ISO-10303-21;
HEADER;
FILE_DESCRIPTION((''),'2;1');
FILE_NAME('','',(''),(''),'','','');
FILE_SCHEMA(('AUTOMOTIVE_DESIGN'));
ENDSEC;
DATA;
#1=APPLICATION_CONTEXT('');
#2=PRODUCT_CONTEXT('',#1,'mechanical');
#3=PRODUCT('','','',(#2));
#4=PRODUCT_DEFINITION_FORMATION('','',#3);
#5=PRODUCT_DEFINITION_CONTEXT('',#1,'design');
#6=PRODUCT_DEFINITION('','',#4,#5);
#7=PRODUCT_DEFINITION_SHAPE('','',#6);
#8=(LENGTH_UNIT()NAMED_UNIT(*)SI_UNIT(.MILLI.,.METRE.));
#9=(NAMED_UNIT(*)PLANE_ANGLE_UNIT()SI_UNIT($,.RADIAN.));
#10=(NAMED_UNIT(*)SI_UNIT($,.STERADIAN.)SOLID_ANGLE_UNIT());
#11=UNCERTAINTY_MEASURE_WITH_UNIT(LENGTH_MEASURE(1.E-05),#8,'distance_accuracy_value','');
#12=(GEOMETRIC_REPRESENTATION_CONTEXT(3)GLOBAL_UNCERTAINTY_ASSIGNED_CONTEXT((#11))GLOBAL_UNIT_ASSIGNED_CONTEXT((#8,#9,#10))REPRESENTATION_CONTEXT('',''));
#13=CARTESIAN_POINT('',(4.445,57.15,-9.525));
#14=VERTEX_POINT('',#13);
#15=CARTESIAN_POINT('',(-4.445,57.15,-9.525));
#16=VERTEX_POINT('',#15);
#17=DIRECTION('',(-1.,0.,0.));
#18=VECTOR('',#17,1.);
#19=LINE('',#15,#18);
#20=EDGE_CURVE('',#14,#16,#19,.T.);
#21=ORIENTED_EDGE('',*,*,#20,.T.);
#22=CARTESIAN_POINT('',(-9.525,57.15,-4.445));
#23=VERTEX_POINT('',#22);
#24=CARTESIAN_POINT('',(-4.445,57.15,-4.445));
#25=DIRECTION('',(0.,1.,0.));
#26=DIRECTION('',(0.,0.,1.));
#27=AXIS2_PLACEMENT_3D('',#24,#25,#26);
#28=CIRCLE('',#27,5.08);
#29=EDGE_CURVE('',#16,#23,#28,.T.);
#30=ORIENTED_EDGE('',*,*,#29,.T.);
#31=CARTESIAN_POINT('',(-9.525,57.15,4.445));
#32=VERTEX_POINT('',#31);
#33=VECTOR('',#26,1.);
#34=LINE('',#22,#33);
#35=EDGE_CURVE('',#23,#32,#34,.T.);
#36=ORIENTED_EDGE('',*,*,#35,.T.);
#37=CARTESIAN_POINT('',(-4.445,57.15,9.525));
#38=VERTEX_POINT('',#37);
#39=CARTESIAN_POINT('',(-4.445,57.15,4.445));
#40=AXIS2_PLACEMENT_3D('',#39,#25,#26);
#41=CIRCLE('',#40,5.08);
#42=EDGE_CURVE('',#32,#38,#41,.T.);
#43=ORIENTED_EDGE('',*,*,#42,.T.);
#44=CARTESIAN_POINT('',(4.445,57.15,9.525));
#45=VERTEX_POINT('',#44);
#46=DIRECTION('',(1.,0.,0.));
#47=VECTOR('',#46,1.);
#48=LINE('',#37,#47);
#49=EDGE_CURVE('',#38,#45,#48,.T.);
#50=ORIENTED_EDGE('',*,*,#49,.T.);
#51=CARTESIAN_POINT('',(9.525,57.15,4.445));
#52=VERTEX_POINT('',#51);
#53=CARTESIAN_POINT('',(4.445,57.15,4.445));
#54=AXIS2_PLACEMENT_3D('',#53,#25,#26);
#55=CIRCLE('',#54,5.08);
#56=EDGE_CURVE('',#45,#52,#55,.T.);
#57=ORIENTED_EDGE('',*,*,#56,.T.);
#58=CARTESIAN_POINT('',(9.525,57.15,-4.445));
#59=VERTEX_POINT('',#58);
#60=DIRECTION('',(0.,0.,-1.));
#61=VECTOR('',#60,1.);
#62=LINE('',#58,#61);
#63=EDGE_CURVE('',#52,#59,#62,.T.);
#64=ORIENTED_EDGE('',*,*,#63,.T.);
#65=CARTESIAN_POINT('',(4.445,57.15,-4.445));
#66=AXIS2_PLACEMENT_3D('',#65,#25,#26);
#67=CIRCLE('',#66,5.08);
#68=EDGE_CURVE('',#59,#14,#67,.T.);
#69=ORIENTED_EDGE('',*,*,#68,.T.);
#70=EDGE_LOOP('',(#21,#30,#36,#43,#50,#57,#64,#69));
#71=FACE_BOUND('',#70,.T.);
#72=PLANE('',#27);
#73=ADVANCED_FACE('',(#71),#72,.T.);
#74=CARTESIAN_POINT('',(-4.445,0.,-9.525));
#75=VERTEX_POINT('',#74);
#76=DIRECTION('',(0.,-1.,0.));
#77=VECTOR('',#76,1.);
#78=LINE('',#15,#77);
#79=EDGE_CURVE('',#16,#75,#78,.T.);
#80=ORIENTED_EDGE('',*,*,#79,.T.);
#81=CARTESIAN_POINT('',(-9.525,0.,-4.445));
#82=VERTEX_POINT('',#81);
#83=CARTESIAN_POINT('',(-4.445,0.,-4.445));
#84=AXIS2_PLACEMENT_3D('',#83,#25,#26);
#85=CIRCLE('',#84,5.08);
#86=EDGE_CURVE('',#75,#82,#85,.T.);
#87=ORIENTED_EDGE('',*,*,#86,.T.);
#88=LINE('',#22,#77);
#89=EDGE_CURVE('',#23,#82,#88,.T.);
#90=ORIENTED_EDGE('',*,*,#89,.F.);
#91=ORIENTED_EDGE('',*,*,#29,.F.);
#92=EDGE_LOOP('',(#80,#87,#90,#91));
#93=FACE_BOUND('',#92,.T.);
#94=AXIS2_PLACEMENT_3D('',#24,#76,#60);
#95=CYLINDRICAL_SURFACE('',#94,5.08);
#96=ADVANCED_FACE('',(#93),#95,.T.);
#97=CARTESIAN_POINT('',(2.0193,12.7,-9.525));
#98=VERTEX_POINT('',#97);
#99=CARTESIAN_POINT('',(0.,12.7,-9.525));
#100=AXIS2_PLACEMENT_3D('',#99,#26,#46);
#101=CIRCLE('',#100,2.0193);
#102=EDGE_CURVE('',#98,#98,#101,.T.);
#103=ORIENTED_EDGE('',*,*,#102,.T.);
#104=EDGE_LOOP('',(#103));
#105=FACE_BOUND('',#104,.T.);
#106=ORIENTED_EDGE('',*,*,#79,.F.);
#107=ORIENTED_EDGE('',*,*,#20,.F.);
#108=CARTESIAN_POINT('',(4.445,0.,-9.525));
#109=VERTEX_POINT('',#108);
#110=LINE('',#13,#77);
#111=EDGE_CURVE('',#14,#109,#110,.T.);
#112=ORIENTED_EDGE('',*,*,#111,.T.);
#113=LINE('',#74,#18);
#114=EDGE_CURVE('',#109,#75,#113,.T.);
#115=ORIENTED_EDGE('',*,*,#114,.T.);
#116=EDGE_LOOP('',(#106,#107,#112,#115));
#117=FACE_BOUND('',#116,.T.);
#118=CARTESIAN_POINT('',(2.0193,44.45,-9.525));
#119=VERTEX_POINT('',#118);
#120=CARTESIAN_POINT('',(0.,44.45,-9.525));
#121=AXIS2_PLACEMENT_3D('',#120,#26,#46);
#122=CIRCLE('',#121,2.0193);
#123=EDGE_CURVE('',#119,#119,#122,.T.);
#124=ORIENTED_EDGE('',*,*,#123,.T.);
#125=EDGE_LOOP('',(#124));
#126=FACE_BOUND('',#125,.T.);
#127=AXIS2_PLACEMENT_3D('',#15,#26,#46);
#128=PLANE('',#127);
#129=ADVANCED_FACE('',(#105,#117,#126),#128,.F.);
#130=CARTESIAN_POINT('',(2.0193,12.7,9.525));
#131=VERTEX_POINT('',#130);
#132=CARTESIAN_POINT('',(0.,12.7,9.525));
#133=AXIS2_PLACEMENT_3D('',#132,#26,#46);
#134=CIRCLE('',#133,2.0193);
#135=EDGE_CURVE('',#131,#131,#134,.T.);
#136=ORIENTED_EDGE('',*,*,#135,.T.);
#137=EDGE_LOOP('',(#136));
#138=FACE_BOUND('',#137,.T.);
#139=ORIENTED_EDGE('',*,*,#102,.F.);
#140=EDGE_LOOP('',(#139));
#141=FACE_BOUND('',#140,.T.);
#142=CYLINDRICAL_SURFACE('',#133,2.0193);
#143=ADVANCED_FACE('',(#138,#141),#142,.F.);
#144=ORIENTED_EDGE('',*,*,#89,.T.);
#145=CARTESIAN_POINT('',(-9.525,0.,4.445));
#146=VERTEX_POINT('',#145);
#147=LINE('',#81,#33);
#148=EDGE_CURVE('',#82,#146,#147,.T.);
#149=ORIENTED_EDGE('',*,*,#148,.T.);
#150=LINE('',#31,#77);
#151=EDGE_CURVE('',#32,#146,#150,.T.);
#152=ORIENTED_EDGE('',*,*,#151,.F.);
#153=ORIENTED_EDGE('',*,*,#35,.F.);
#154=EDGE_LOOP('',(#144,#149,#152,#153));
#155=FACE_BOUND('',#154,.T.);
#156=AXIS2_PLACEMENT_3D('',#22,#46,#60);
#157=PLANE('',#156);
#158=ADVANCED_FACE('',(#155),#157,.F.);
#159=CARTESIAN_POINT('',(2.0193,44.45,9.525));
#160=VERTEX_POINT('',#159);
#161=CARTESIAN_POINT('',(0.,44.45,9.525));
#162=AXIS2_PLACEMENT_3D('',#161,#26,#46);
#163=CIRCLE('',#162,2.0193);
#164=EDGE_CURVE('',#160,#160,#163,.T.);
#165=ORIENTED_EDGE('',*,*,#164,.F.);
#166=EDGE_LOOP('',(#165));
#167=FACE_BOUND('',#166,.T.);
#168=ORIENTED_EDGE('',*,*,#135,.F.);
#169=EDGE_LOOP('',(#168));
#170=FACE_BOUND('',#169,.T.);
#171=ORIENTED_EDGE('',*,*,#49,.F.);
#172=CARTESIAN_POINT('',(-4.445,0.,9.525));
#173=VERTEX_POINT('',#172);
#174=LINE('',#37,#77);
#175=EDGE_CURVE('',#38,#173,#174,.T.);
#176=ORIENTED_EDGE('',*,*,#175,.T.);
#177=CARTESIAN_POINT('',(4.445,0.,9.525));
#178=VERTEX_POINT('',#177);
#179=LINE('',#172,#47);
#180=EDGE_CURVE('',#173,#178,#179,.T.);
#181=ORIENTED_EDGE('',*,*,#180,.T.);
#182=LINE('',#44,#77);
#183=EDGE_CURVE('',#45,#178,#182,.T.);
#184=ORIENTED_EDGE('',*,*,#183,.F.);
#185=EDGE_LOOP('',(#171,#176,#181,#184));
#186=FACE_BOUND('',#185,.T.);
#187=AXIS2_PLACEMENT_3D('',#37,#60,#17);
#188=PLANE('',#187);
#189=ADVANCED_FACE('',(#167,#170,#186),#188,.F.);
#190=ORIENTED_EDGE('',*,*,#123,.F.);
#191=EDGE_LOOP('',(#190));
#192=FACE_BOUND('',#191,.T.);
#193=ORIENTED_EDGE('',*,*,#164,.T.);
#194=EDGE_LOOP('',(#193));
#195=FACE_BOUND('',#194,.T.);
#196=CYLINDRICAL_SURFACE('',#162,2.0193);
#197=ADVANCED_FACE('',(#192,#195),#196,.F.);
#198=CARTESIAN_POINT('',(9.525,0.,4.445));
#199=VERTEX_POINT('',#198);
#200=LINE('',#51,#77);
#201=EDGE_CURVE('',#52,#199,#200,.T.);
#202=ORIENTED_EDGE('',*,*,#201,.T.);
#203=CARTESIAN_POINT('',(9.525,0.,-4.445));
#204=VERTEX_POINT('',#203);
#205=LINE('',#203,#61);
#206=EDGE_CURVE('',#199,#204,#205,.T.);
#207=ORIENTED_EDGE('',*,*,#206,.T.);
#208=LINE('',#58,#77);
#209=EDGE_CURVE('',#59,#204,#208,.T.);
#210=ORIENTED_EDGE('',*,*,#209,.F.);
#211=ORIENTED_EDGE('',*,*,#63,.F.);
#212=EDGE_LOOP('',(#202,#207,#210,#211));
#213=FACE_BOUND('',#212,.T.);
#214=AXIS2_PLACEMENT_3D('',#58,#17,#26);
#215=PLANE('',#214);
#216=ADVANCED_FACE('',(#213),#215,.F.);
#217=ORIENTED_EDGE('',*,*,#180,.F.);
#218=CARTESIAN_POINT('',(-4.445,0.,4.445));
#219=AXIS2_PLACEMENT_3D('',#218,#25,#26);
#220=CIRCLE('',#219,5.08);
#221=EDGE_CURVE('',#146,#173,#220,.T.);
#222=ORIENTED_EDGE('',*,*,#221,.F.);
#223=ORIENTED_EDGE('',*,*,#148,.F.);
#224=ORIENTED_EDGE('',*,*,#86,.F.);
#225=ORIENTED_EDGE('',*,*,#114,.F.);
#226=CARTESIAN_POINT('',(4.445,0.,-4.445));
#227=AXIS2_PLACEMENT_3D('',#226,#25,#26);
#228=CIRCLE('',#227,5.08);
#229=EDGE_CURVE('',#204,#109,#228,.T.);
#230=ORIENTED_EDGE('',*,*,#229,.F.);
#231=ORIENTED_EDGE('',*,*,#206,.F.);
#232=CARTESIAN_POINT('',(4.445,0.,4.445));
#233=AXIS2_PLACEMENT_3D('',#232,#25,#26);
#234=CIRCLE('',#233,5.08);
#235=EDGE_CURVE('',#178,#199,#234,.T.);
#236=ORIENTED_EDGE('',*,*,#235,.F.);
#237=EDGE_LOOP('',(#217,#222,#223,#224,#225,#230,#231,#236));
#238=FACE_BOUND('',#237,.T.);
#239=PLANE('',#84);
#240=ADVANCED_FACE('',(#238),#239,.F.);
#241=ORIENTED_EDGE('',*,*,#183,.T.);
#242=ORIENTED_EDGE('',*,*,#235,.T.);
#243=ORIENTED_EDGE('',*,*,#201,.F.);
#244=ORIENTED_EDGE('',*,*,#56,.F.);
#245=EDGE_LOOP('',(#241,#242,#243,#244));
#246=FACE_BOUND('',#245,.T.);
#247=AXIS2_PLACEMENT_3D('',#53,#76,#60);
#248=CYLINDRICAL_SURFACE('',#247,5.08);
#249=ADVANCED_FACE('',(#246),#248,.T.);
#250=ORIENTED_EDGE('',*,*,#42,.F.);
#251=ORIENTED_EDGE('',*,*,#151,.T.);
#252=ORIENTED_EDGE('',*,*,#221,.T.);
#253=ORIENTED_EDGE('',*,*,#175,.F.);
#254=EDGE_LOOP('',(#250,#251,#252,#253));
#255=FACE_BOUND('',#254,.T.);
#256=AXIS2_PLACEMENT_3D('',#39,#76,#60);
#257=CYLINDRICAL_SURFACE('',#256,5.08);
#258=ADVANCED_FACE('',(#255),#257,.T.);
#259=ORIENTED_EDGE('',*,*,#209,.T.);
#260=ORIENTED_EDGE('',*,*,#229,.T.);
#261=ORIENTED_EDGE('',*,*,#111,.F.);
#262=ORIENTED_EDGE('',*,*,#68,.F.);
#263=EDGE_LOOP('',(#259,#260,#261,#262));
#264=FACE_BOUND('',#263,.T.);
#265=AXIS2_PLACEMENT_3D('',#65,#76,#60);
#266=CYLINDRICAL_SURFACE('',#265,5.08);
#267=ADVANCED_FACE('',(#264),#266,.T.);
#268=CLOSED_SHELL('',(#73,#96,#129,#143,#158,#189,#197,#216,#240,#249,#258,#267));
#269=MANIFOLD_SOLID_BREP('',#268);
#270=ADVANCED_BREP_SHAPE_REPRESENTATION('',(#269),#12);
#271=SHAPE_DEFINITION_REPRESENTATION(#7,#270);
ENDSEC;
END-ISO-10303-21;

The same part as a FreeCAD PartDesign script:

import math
import FreeCAD as App
import Part
import Sketcher
Q = App.Units.Quantity

doc = App.newDocument("Part")
body = doc.addObject("PartDesign::Body", "Body")

sketch1 = body.newObject("Sketcher::SketchObject", "Sketch")
sketch1.AttachmentSupport = (doc.getObject("XZ_Plane"), [""])
sketch1.MapMode = "FlatFace"
sketch1.addGeometry(Part.LineSegment(App.Vector(4.445, -9.525, 0), App.Vector(-4.445, -9.525, 0)), False)
sketch1.addGeometry(Part.ArcOfCircle(Part.Circle(App.Vector(-4.445, -4.445, 0), App.Vector(0, 0, 1), 5.08), math.radians(-180), math.radians(-90)), False)
sketch1.addGeometry(Part.LineSegment(App.Vector(-9.525, -4.445, 0), App.Vector(-9.525, 4.445, 0)), False)
sketch1.addGeometry(Part.ArcOfCircle(Part.Circle(App.Vector(-4.445, 4.445, 0), App.Vector(0, 0, 1), 5.08), math.radians(90), math.radians(180)), False)
sketch1.addGeometry(Part.LineSegment(App.Vector(-4.445, 9.525, 0), App.Vector(4.445, 9.525, 0)), False)
sketch1.addGeometry(Part.ArcOfCircle(Part.Circle(App.Vector(4.445, 4.445, 0), App.Vector(0, 0, 1), 5.08), math.radians(0), math.radians(90)), False)
sketch1.addGeometry(Part.LineSegment(App.Vector(9.525, 4.445, 0), App.Vector(9.525, -4.445, 0)), False)
sketch1.addGeometry(Part.ArcOfCircle(Part.Circle(App.Vector(4.445, -4.445, 0), App.Vector(0, 0, 1), 5.08), math.radians(-90), math.radians(0)), False)
sketch1.addConstraint(Sketcher.Constraint("Tangent", 0, 2, 1, 2))
sketch1.addConstraint(Sketcher.Constraint("Tangent", 1, 1, 2, 1))
sketch1.addConstraint(Sketcher.Constraint("Tangent", 2, 2, 3, 2))
sketch1.addConstraint(Sketcher.Constraint("Tangent", 3, 1, 4, 1))
sketch1.addConstraint(Sketcher.Constraint("Tangent", 4, 2, 5, 2))
sketch1.addConstraint(Sketcher.Constraint("Tangent", 5, 1, 6, 1))
sketch1.addConstraint(Sketcher.Constraint("Tangent", 6, 2, 7, 2))
sketch1.addConstraint(Sketcher.Constraint("Tangent", 7, 1, 0, 1))
sketch1.addConstraint(Sketcher.Constraint("Horizontal", 0))
sketch1.addConstraint(Sketcher.Constraint("Vertical", 2))
sketch1.addConstraint(Sketcher.Constraint("Horizontal", 4))
sketch1.addConstraint(Sketcher.Constraint("Vertical", 6))
sketch1.addConstraint(Sketcher.Constraint("Equal", 1, 3))
sketch1.addConstraint(Sketcher.Constraint("Equal", 3, 5))
sketch1.addConstraint(Sketcher.Constraint("Equal", 5, 7))
sketch1.addConstraint(Sketcher.Constraint("Symmetric", 1, 3, 5, 3, -1, 1))
sketch1.addConstraint(Sketcher.Constraint("Equal", 4, 2))
sketch1.addConstraint(Sketcher.Constraint("Radius", 1, Q("0.2 in")))
sketch1.addConstraint(Sketcher.Constraint("DistanceX", 0, 2, 0, 1, Q("0.35 in")))
pad1 = body.newObject("PartDesign::Pad", "Pad")
pad1.Profile = sketch1
pad1.Length = Q("2.25 in")
pad1.Reversed = True

sketch2 = body.newObject("Sketcher::SketchObject", "Sketch001")
sketch2.AttachmentSupport = (doc.getObject("XY_Plane"), [""])
sketch2.MapMode = "FlatFace"
sketch2.AttachmentOffset = App.Placement(App.Vector(0, 0, 0.375 * 25.4), App.Rotation())
sketch2.addGeometry(Part.Circle(App.Vector(0, 44.45, 0), App.Vector(0, 0, 1), 2.0193), False)
sketch2.addGeometry(Part.Circle(App.Vector(0, 12.7, 0), App.Vector(0, 0, 1), 2.0193), False)
sketch2.addConstraint(Sketcher.Constraint("Equal", 0, 1))
sketch2.addConstraint(Sketcher.Constraint("PointOnObject", 0, 3, -2))
sketch2.addConstraint(Sketcher.Constraint("PointOnObject", 1, 3, -2))
sketch2.addConstraint(Sketcher.Constraint("Diameter", 0, Q("0.159 in")))
sketch2.addConstraint(Sketcher.Constraint("DistanceY", -1, 1, 1, 3, Q("0.5 in")))
sketch2.addConstraint(Sketcher.Constraint("DistanceY", -1, 1, 0, 3, Q("1.75 in")))
doc.recompute()
hole = body.newObject("PartDesign::Hole", "Hole")
hole.Profile = sketch2
hole.ThreadType = "None"
hole.Diameter = Q("0.159 in")
hole.DepthType = "ThroughAll"

doc.recompute()
